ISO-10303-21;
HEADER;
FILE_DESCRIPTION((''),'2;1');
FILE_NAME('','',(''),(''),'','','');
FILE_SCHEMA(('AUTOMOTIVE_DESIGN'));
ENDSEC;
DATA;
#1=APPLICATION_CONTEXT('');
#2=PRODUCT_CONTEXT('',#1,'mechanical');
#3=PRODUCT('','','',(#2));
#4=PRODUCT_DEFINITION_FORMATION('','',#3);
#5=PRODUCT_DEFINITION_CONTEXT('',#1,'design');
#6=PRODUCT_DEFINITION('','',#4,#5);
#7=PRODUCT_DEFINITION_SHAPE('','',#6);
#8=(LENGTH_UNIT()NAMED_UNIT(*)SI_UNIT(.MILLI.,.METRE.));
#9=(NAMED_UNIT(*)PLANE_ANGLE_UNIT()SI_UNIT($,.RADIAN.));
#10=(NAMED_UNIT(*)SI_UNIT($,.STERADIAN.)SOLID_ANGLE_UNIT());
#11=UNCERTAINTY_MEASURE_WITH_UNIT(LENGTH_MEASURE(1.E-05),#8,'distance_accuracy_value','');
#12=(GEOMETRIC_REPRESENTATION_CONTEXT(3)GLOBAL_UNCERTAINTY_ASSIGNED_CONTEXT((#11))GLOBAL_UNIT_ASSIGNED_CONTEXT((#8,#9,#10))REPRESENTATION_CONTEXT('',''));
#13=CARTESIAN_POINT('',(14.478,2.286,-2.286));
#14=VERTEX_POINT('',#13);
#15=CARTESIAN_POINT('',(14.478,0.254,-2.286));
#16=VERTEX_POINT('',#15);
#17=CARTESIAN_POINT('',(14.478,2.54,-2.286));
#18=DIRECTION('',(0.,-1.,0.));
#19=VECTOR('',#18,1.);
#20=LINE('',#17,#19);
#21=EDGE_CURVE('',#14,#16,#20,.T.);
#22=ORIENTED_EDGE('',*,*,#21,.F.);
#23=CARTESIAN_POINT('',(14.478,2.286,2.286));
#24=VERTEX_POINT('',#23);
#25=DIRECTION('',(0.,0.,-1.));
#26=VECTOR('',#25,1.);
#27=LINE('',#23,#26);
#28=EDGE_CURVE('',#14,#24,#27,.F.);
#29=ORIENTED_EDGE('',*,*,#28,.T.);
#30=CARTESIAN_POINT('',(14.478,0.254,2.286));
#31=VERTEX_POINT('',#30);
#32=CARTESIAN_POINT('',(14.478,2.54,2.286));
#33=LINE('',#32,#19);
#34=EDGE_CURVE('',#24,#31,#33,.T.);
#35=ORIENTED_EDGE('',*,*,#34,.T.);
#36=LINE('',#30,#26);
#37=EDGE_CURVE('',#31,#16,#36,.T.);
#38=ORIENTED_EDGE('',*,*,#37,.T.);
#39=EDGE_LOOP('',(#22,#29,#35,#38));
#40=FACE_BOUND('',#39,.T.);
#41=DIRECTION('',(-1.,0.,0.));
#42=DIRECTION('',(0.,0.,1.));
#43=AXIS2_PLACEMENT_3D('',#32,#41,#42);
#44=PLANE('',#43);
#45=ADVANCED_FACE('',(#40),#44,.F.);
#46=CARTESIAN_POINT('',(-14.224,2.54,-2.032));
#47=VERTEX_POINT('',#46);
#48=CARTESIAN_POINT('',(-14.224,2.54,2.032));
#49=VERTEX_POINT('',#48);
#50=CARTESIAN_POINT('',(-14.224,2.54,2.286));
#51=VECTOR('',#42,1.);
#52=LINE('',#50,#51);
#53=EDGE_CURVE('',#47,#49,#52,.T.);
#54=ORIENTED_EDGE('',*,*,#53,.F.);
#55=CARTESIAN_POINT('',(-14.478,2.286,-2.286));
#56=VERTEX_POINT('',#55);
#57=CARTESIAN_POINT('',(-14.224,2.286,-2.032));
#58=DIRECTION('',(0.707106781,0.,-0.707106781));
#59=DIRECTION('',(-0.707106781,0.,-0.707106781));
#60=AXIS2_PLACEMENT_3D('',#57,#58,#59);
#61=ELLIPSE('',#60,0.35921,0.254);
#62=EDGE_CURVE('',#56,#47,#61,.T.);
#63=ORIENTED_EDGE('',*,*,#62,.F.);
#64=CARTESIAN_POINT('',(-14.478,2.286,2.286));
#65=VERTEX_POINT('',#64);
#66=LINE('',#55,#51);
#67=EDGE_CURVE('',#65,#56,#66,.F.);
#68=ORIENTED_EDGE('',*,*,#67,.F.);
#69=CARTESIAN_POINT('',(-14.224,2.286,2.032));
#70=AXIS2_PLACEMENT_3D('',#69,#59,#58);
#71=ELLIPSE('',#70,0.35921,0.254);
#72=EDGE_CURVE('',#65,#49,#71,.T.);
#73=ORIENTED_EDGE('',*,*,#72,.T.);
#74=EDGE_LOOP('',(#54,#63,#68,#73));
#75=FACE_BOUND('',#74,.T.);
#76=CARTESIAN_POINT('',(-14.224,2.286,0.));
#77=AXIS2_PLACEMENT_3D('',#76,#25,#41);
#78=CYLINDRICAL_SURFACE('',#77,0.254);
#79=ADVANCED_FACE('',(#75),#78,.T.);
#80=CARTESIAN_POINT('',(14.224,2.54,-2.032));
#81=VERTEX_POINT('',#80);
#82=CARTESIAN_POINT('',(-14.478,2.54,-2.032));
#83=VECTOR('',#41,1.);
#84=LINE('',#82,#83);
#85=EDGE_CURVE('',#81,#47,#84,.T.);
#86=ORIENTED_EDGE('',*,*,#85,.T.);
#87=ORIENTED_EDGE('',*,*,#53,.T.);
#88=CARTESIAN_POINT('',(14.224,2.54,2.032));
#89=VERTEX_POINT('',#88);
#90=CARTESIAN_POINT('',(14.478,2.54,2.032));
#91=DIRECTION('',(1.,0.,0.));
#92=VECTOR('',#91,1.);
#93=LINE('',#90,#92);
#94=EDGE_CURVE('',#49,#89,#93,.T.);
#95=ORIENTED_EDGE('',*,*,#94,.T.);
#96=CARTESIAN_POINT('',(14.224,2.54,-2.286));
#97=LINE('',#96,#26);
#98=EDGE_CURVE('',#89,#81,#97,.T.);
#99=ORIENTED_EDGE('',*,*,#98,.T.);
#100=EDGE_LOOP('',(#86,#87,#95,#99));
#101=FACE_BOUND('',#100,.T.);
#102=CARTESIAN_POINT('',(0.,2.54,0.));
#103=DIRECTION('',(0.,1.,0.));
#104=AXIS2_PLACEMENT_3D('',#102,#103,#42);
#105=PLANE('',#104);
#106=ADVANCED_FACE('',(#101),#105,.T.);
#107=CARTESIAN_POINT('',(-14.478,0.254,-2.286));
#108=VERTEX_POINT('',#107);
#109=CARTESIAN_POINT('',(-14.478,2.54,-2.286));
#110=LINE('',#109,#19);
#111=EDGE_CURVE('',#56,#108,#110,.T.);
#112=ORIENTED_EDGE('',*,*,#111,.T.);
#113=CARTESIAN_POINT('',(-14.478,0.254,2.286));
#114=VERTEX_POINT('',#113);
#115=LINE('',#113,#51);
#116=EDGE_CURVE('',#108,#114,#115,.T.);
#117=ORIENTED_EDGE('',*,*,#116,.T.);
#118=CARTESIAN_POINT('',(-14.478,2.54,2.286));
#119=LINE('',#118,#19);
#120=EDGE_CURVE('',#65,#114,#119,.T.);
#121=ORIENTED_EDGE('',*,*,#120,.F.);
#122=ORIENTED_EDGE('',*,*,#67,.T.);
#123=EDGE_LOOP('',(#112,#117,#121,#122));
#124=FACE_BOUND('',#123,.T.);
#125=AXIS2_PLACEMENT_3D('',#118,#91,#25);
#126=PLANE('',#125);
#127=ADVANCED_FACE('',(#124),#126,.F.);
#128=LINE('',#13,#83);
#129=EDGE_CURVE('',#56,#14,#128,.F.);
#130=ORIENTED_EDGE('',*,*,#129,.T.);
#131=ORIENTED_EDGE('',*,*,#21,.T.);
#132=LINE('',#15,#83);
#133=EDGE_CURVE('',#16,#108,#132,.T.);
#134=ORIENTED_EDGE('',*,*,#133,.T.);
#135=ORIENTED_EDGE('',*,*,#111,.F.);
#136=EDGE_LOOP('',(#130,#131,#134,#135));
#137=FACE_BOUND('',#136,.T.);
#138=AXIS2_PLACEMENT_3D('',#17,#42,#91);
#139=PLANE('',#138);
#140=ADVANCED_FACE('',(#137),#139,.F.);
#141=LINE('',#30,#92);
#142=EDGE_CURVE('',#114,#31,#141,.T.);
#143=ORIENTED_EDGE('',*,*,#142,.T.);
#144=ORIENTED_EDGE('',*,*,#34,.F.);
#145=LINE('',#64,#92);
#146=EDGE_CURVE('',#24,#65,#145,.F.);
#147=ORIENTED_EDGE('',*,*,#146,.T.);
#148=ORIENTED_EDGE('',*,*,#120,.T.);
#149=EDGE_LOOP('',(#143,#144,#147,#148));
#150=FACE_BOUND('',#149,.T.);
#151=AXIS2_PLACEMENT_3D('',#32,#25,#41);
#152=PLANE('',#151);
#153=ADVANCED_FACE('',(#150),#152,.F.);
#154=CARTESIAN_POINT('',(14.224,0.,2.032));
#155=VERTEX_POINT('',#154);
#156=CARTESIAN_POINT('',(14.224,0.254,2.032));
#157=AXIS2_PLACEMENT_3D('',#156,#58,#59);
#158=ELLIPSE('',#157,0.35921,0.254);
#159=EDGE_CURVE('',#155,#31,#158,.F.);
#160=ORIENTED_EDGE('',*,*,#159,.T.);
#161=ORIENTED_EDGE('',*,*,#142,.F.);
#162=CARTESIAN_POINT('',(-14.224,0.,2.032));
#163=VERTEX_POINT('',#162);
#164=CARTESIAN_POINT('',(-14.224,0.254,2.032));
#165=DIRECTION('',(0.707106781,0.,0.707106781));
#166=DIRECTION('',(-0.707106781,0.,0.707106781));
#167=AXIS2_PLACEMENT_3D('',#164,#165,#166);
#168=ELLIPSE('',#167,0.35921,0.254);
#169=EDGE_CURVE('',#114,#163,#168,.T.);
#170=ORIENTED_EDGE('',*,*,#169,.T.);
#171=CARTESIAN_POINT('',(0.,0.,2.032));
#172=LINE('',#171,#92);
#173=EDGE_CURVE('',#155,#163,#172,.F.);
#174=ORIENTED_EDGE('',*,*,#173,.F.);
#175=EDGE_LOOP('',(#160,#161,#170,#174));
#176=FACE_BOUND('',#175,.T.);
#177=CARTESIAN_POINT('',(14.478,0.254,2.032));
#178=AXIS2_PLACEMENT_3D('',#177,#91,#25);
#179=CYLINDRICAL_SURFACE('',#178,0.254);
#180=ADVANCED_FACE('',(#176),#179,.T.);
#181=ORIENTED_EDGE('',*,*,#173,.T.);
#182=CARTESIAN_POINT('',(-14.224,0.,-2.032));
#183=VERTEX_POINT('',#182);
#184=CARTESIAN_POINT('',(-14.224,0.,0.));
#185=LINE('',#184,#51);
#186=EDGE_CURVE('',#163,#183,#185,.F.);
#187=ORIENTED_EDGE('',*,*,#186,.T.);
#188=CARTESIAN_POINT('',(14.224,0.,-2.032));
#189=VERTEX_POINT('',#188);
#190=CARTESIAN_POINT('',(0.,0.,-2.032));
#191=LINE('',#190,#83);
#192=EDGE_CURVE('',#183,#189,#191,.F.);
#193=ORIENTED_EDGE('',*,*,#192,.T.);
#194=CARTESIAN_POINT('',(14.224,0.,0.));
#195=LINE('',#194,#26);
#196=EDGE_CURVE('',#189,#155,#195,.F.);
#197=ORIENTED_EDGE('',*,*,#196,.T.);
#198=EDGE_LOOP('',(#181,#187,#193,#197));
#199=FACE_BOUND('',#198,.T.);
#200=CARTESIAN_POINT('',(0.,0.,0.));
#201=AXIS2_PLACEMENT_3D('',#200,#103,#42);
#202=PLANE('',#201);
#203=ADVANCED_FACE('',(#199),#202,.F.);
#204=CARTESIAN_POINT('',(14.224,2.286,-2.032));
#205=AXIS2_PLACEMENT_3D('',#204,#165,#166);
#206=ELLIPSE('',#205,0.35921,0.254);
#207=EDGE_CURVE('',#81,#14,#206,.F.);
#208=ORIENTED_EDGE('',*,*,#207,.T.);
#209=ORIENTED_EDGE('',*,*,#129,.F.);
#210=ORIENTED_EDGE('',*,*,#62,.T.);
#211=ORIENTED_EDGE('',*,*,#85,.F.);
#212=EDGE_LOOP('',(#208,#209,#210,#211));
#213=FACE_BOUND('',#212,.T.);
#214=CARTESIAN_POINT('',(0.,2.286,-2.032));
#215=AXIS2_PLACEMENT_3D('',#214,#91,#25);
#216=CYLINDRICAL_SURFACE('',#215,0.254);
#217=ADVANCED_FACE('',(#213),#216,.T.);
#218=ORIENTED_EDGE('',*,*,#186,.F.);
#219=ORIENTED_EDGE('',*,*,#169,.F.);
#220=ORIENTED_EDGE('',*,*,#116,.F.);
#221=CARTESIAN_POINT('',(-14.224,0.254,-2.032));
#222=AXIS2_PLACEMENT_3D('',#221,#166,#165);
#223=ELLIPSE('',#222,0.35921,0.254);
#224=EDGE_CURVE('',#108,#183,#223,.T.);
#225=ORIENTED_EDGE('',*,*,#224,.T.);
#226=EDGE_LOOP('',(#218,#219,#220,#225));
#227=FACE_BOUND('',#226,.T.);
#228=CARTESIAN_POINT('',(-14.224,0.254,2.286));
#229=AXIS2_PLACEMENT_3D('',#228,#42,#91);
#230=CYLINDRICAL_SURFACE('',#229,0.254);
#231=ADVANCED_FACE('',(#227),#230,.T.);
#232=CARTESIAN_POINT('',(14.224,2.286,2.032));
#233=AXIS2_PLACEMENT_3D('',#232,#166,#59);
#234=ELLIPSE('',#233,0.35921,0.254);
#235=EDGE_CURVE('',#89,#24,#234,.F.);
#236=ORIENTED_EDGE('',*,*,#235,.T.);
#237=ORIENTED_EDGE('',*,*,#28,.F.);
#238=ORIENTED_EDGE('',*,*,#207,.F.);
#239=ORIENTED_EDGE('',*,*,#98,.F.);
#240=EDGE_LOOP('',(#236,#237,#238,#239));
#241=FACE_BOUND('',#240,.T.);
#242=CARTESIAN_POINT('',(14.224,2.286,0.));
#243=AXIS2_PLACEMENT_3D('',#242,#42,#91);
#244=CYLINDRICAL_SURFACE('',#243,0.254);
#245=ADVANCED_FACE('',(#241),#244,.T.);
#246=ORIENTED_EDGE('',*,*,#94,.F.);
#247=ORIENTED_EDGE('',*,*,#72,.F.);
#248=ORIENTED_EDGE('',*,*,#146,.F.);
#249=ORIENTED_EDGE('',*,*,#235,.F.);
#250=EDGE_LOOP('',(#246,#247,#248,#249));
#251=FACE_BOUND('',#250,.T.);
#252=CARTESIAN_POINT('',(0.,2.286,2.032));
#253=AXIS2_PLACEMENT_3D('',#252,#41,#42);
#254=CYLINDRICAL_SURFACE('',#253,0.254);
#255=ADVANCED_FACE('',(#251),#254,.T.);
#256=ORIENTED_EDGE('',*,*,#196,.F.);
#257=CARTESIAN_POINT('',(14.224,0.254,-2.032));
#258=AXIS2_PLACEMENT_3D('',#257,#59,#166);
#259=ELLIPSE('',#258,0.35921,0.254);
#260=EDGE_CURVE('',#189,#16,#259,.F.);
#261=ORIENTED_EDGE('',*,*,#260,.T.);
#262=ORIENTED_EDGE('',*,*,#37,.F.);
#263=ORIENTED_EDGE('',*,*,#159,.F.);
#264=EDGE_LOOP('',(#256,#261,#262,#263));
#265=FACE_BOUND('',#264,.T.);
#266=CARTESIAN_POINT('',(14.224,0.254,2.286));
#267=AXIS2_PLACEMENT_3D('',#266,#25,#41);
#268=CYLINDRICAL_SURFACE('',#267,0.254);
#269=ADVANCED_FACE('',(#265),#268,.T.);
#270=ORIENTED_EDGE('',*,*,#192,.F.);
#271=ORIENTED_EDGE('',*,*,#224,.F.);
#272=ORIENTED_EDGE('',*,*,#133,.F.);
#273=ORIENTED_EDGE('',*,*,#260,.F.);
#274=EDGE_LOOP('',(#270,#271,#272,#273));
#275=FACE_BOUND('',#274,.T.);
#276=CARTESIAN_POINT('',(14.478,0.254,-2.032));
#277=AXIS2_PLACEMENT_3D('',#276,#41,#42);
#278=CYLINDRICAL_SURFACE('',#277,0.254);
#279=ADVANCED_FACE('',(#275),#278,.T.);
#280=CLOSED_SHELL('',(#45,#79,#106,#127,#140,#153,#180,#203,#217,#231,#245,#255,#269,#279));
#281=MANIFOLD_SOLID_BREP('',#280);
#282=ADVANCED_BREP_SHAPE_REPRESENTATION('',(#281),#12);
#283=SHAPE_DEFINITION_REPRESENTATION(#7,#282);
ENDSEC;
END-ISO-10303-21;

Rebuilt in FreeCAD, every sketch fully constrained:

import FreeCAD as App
import Part
import Sketcher

V = App.Vector
Q = App.Units.Quantity


def edges_at(feature, points):
    """Names of the edges that pass closest to the given points."""
    edges = feature.Shape.Edges
    near = lambda p: min(range(len(edges)), key=lambda i: edges[i].distToShape(Part.Vertex(*p))[0])
    return sorted({f"Edge{near(p) + 1}" for p in points})

doc = App.newDocument("Part")
body = doc.addObject("PartDesign::Body", "Body")

# Sketch on XZ plane
sketch1 = doc.addObject("Sketcher::SketchObject", "Sketch")
body.addObject(sketch1)
sketch1.AttachmentSupport = (doc.XZ_Plane, [""])
sketch1.MapMode = "FlatFace"
sketch1.addGeometry([
    Part.LineSegment(V(-14.5, -2.3, 0), V(-14.5, 2.3, 0)),
    Part.LineSegment(V(-14.5, 2.3, 0), V(14.5, 2.3, 0)),
    Part.LineSegment(V(14.5, 2.3, 0), V(14.5, -2.3, 0)),
    Part.LineSegment(V(14.5, -2.3, 0), V(-14.5, -2.3, 0)),
], False)
sketch1.addConstraint([
    Sketcher.Constraint("Coincident", 0, 2, 1, 1),
    Sketcher.Constraint("Coincident", 1, 2, 2, 1),
    Sketcher.Constraint("Coincident", 2, 2, 3, 1),
    Sketcher.Constraint("Coincident", 3, 2, 0, 1),
    Sketcher.Constraint("Vertical", 0),
    Sketcher.Constraint("Horizontal", 1),
    Sketcher.Constraint("Vertical", 2),
    Sketcher.Constraint("Horizontal", 3),
    Sketcher.Constraint("Symmetric", 0, 2, 2, 2, -1, 1),
    Sketcher.Constraint("DistanceX", 1, 1, 1, 2, Q("1.14 in")),
    Sketcher.Constraint("DistanceY", 0, 1, 0, 2, Q("0.18 in")),
])
pad1 = doc.addObject("PartDesign::Pad", "Pad")
body.addObject(pad1)
pad1.Profile = sketch1
pad1.Length = Q("0.1 in")
pad1.Reversed = True
doc.recompute()

fillet = doc.addObject("PartDesign::Fillet", "Fillet")
body.addObject(fillet)
fillet.Base = (pad1, edges_at(pad1, [
    (14.478, 2.54, 0),
    (0, 2.54, -2.286),
    (-14.478, 2.54, 0),
    (0, 0, -2.286),
    (14.478, 0, 0),
    (0, 0, 2.286),
    (-14.478, 0, 0),
    (0, 2.54, 2.286),
]))
fillet.Radius = Q("0.01 in")

doc.recompute()
